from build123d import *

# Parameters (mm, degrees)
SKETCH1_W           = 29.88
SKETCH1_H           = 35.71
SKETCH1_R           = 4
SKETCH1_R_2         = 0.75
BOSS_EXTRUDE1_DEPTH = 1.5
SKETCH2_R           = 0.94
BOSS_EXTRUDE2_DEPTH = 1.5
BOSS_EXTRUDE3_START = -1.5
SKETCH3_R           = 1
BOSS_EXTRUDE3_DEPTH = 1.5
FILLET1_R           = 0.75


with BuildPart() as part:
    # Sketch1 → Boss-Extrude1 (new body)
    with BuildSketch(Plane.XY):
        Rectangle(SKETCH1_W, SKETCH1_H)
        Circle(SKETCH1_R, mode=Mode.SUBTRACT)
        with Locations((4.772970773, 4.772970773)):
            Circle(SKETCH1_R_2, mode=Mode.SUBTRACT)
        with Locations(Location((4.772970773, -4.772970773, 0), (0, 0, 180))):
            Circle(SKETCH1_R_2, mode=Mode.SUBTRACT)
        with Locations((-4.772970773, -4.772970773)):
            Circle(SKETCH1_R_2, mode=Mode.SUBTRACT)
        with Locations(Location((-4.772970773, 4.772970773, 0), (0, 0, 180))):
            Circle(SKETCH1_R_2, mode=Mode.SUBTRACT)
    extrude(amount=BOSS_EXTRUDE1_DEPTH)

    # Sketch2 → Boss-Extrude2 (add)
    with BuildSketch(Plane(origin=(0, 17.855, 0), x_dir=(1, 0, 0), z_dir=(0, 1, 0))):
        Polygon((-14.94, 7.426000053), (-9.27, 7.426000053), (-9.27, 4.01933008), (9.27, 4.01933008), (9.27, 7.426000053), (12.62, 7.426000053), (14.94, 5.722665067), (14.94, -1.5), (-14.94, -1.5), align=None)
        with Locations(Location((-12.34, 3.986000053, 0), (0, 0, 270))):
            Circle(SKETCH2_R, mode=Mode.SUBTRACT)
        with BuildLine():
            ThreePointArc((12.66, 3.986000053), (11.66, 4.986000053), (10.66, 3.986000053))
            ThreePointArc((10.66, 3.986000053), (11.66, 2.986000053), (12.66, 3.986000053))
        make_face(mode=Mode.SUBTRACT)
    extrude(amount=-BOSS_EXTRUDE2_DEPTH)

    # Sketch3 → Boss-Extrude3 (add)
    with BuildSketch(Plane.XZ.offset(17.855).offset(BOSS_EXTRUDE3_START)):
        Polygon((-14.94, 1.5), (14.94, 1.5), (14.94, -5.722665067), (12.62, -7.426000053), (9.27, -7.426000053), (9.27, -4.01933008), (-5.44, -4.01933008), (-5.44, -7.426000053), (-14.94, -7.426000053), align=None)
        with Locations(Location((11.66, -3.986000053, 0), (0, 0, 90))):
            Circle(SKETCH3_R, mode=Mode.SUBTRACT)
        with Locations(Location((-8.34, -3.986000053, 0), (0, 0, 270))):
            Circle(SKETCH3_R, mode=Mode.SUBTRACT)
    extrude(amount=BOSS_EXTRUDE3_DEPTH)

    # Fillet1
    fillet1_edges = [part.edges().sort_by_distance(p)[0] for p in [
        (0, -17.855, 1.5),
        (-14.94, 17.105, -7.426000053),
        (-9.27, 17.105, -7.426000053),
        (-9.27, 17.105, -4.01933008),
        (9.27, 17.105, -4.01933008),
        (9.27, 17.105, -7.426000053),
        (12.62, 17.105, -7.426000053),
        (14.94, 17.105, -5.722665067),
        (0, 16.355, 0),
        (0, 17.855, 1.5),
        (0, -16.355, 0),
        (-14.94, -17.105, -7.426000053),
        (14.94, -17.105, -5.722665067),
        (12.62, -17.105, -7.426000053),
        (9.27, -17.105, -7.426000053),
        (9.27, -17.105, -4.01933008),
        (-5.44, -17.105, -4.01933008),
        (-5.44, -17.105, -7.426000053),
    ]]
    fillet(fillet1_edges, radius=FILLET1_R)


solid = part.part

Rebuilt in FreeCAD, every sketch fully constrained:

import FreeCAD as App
import Part
import Sketcher


def edges_at(feature, points):
    """Names of the edges that pass closest to the given points."""
    edges = feature.Shape.Edges
    near = lambda p: min(range(len(edges)), key=lambda i: edges[i].distToShape(Part.Vertex(*p))[0])
    return sorted({f"Edge{near(p) + 1}" for p in points})

doc = App.newDocument("Part")
body = doc.addObject("PartDesign::Body", "Body")

sketch1 = body.newObject("Sketcher::SketchObject", "Sketch")
sketch1.AttachmentSupport = (doc.getObject("XY_Plane"), [""])
sketch1.MapMode = "FlatFace"
sketch1.addGeometry([
    Part.LineSegment(App.Vector(-14.9, 17.9, 0), App.Vector(-14.9, -17.9, 0)),
    Part.LineSegment(App.Vector(-14.9, -17.9, 0), App.Vector(14.9, -17.9, 0)),
    Part.LineSegment(App.Vector(14.9, -17.9, 0), App.Vector(14.9, 17.9, 0)),
    Part.LineSegment(App.Vector(14.9, 17.9, 0), App.Vector(-14.9, 17.9, 0)),
    Part.Circle(App.Vector(-4.8, -4.8, 0), App.Vector(0, 0, 1), 0.8),
    Part.Circle(App.Vector(4.8, -4.8, 0), App.Vector(0, 0, 1), 0.8),
    Part.Circle(App.Vector(-4.8, 4.8, 0), App.Vector(0, 0, 1), 0.8),
    Part.Circle(App.Vector(0, 0, 0), App.Vector(0, 0, 1), 4),
    Part.Circle(App.Vector(4.8, 4.8, 0), App.Vector(0, 0, 1), 0.8),
], False)
sketch1.addConstraint([
    Sketcher.Constraint("Coincident", 0, 2, 1, 1),
    Sketcher.Constraint("Coincident", 1, 2, 2, 1),
    Sketcher.Constraint("Coincident", 2, 2, 3, 1),
    Sketcher.Constraint("Coincident", 3, 2, 0, 1),
    Sketcher.Constraint("Vertical", 0),
    Sketcher.Constraint("Horizontal", 1),
    Sketcher.Constraint("Vertical", 2),
    Sketcher.Constraint("Horizontal", 3),
    Sketcher.Constraint("Coincident", 7, 3, -1, 1),
    Sketcher.Constraint("Equal", 4, 5),
    Sketcher.Constraint("Equal", 5, 6),
    Sketcher.Constraint("Equal", 6, 8),
    Sketcher.Constraint("Symmetric", 5, 3, 6, 3, -1, 1),
    Sketcher.Constraint("Symmetric", 4, 3, 8, 3, -1, 1),
    Sketcher.Constraint("Symmetric", 0, 2, 2, 2, -1, 1),
    Sketcher.Constraint("Symmetric", 4, 3, 5, 3, -2),
    Sketcher.Constraint("Diameter", 7, 8.0),
    Sketcher.Constraint("Diameter", 4, 1.5),
    Sketcher.Constraint("DistanceX", 1, 1, 1, 2, 29.88),
    Sketcher.Constraint("DistanceY", 0, 2, 0, 1, 35.71),
    Sketcher.Constraint("DistanceX", 4, 3, -1, 1, 4.772971),
    Sketcher.Constraint("DistanceY", 4, 3, -1, 1, 4.772971),
])
pad1 = body.newObject("PartDesign::Pad", "Pad")
pad1.Profile = sketch1
pad1.Length = 1.5

sketch2 = body.newObject("Sketcher::SketchObject", "Sketch001")
sketch2.AttachmentSupport = (doc.getObject("XZ_Plane"), [""])
sketch2.MapMode = "FlatFace"
sketch2.AttachmentOffset = App.Placement(App.Vector(0, 0, -17.855), App.Rotation())
sketch2.addGeometry([
    Part.LineSegment(App.Vector(-9.3, -7.4, 0), App.Vector(-14.9, -7.4, 0)),
    Part.LineSegment(App.Vector(-14.9, -7.4, 0), App.Vector(-14.9, 1.5, 0)),
    Part.LineSegment(App.Vector(-14.9, 1.5, 0), App.Vector(14.9, 1.5, 0)),
    Part.LineSegment(App.Vector(14.9, 1.5, 0), App.Vector(14.9, -5.7, 0)),
    Part.LineSegment(App.Vector(14.9, -5.7, 0), App.Vector(12.6, -7.4, 0)),
    Part.LineSegment(App.Vector(12.6, -7.4, 0), App.Vector(9.3, -7.4, 0)),
    Part.LineSegment(App.Vector(9.3, -7.4, 0), App.Vector(9.3, -4, 0)),
    Part.LineSegment(App.Vector(9.3, -4, 0), App.Vector(-9.3, -4, 0)),
    Part.LineSegment(App.Vector(-9.3, -4, 0), App.Vector(-9.3, -7.4, 0)),
    Part.Circle(App.Vector(11.7, -4, 0), App.Vector(0, 0, 1), 1),
    Part.Circle(App.Vector(-12.3, -4, 0), App.Vector(0, 0, 1), 0.9),
], False)
sketch2.addConstraint([
    Sketcher.Constraint("Coincident", 0, 2, 1, 1),
    Sketcher.Constraint("Coincident", 1, 2, 2, 1),
    Sketcher.Constraint("Coincident", 2, 2, 3, 1),
    Sketcher.Constraint("Coincident", 3, 2, 4, 1),
    Sketcher.Constraint("Coincident", 4, 2, 5, 1),
    Sketcher.Constraint("Coincident", 5, 2, 6, 1),
    Sketcher.Constraint("Coincident", 6, 2, 7, 1),
    Sketcher.Constraint("Coincident", 7, 2, 8, 1),
    Sketcher.Constraint("Coincident", 8, 2, 0, 1),
    Sketcher.Constraint("Horizontal", 0),
    Sketcher.Constraint("Vertical", 1),
    Sketcher.Constraint("Horizontal", 2),
    Sketcher.Constraint("Vertical", 3),
    Sketcher.Constraint("Horizontal", 5),
    Sketcher.Constraint("Vertical", 6),
    Sketcher.Constraint("Horizontal", 7),
    Sketcher.Constraint("Vertical", 8),
    Sketcher.Constraint("Symmetric", 5, 2, 8, 2, -2),
    Sketcher.Constraint("Horizontal", 9, 3, 10, 3),
    Sketcher.Constraint("Diameter", 9, 2.0),
    Sketcher.Constraint("Diameter", 10, 1.88),
    Sketcher.Constraint("DistanceX", 10, 3, 9, 3, 24.0),
    Sketcher.Constraint("DistanceX", 0, 2, 0, 1, 5.67),
    Sketcher.Constraint("DistanceX", 2, 1, 2, 2, 29.88),
    Sketcher.Constraint("DistanceX", 5, 2, 5, 1, 3.35),
    Sketcher.Constraint("DistanceX", 7, 2, 7, 1, 18.54),
    Sketcher.Constraint("DistanceY", -1, 1, 1, 2, 1.5),
    Sketcher.Constraint("DistanceX", 0, 2, 10, 3, 2.6),
    Sketcher.Constraint("DistanceY", 1, 1, 1, 2, 8.926),
    Sketcher.Constraint("DistanceY", 0, 2, 10, 3, 3.44),
    Sketcher.Constraint("DistanceY", 6, 1, 6, 2, 3.40667),
    Sketcher.Constraint("Distance", 4, 2.87815),
])
pad2 = body.newObject("PartDesign::Pad", "Pad001")
pad2.Profile = sketch2
pad2.Length = 1.5

sketch3 = body.newObject("Sketcher::SketchObject", "Sketch002")
sketch3.AttachmentSupport = (doc.getObject("XZ_Plane"), [""])
sketch3.MapMode = "FlatFace"
sketch3.AttachmentOffset = App.Placement(App.Vector(0, 0, 16.355), App.Rotation())
sketch3.addGeometry([
    Part.LineSegment(App.Vector(14.9, 1.5, 0), App.Vector(-14.9, 1.5, 0)),
    Part.LineSegment(App.Vector(-14.9, 1.5, 0), App.Vector(-14.9, -7.4, 0)),
    Part.LineSegment(App.Vector(-14.9, -7.4, 0), App.Vector(-5.4, -7.4, 0)),
    Part.LineSegment(App.Vector(-5.4, -7.4, 0), App.Vector(-5.4, -4, 0)),
    Part.LineSegment(App.Vector(-5.4, -4, 0), App.Vector(9.3, -4, 0)),
    Part.LineSegment(App.Vector(9.3, -4, 0), App.Vector(9.3, -7.4, 0)),
    Part.LineSegment(App.Vector(9.3, -7.4, 0), App.Vector(12.6, -7.4, 0)),
    Part.LineSegment(App.Vector(12.6, -7.4, 0), App.Vector(14.9, -5.7, 0)),
    Part.LineSegment(App.Vector(14.9, -5.7, 0), App.Vector(14.9, 1.5, 0)),
    Part.Circle(App.Vector(11.7, -4, 0), App.Vector(0, 0, 1), 1),
    Part.Circle(App.Vector(-8.3, -4, 0), App.Vector(0, 0, 1), 1),
], False)
sketch3.addConstraint([
    Sketcher.Constraint("Coincident", 0, 2, 1, 1),
    Sketcher.Constraint("Coincident", 1, 2, 2, 1),
    Sketcher.Constraint("Coincident", 2, 2, 3, 1),
    Sketcher.Constraint("Coincident", 3, 2, 4, 1),
    Sketcher.Constraint("Coincident", 4, 2, 5, 1),
    Sketcher.Constraint("Coincident", 5, 2, 6, 1),
    Sketcher.Constraint("Coincident", 6, 2, 7, 1),
    Sketcher.Constraint("Coincident", 7, 2, 8, 1),
    Sketcher.Constraint("Coincident", 8, 2, 0, 1),
    Sketcher.Constraint("Horizontal", 0),
    Sketcher.Constraint("Vertical", 1),
    Sketcher.Constraint("Horizontal", 2),
    Sketcher.Constraint("Vertical", 3),
    Sketcher.Constraint("Horizontal", 4),
    Sketcher.Constraint("Vertical", 5),
    Sketcher.Constraint("Horizontal", 6),
    Sketcher.Constraint("Vertical", 8),
    Sketcher.Constraint("Equal", 9, 10),
    Sketcher.Constraint("Horizontal", 9, 3, 10, 3),
    Sketcher.Constraint("Horizontal", 2, 2, 5, 2),
    Sketcher.Constraint("Diameter", 9, 2.0),
    Sketcher.Constraint("DistanceX", 2, 1, 2, 2, 9.5),
    Sketcher.Constraint("DistanceX", 10, 3, 9, 3, 20.0),
    Sketcher.Constraint("DistanceX", 0, 2, 0, 1, 29.88),
    Sketcher.Constraint("DistanceX", 4, 1, 4, 2, 14.71),
    Sketcher.Constraint("DistanceX", 6, 1, 6, 2, 3.35),
    Sketcher.Constraint("DistanceY", -1, 1, 0, 2, 1.5),
    Sketcher.Constraint("DistanceX", 0, 2, 10, 3, 6.6),
    Sketcher.Constraint("DistanceY", 1, 2, 1, 1, 8.926),
    Sketcher.Constraint("DistanceX", -1, 1, 9, 3, 11.66),
    Sketcher.Constraint("DistanceY", 1, 2, 10, 3, 3.44),
    Sketcher.Constraint("DistanceY", 3, 1, 3, 2, 3.40667),
    Sketcher.Constraint("Distance", 7, 2.87815),
])
pad3 = body.newObject("PartDesign::Pad", "Pad002")
pad3.Profile = sketch3
pad3.Length = 1.5
doc.recompute()

fillet = body.newObject("PartDesign::Fillet", "Fillet")
fillet.Base = (pad3, edges_at(pad3, [
    (0, -17.855, 1.5),
    (-14.94, 17.105, -7.426),
    (-9.27, 17.105, -7.426),
    (-9.27, 17.105, -4.019),
    (9.27, 17.105, -4.019),
    (9.27, 17.105, -7.426),
    (12.62, 17.105, -7.426),
    (14.94, 17.105, -5.723),
    (0, 16.355, 0),
    (0, 17.855, 1.5),
    (0, -16.355, 0),
    (-14.94, -17.105, -7.426),
    (14.94, -17.105, -5.723),
    (12.62, -17.105, -7.426),
    (9.27, -17.105, -7.426),
    (9.27, -17.105, -4.019),
    (-5.44, -17.105, -4.019),
    (-5.44, -17.105, -7.426),
]))
fillet.Radius = 0.75

doc.recompute()
